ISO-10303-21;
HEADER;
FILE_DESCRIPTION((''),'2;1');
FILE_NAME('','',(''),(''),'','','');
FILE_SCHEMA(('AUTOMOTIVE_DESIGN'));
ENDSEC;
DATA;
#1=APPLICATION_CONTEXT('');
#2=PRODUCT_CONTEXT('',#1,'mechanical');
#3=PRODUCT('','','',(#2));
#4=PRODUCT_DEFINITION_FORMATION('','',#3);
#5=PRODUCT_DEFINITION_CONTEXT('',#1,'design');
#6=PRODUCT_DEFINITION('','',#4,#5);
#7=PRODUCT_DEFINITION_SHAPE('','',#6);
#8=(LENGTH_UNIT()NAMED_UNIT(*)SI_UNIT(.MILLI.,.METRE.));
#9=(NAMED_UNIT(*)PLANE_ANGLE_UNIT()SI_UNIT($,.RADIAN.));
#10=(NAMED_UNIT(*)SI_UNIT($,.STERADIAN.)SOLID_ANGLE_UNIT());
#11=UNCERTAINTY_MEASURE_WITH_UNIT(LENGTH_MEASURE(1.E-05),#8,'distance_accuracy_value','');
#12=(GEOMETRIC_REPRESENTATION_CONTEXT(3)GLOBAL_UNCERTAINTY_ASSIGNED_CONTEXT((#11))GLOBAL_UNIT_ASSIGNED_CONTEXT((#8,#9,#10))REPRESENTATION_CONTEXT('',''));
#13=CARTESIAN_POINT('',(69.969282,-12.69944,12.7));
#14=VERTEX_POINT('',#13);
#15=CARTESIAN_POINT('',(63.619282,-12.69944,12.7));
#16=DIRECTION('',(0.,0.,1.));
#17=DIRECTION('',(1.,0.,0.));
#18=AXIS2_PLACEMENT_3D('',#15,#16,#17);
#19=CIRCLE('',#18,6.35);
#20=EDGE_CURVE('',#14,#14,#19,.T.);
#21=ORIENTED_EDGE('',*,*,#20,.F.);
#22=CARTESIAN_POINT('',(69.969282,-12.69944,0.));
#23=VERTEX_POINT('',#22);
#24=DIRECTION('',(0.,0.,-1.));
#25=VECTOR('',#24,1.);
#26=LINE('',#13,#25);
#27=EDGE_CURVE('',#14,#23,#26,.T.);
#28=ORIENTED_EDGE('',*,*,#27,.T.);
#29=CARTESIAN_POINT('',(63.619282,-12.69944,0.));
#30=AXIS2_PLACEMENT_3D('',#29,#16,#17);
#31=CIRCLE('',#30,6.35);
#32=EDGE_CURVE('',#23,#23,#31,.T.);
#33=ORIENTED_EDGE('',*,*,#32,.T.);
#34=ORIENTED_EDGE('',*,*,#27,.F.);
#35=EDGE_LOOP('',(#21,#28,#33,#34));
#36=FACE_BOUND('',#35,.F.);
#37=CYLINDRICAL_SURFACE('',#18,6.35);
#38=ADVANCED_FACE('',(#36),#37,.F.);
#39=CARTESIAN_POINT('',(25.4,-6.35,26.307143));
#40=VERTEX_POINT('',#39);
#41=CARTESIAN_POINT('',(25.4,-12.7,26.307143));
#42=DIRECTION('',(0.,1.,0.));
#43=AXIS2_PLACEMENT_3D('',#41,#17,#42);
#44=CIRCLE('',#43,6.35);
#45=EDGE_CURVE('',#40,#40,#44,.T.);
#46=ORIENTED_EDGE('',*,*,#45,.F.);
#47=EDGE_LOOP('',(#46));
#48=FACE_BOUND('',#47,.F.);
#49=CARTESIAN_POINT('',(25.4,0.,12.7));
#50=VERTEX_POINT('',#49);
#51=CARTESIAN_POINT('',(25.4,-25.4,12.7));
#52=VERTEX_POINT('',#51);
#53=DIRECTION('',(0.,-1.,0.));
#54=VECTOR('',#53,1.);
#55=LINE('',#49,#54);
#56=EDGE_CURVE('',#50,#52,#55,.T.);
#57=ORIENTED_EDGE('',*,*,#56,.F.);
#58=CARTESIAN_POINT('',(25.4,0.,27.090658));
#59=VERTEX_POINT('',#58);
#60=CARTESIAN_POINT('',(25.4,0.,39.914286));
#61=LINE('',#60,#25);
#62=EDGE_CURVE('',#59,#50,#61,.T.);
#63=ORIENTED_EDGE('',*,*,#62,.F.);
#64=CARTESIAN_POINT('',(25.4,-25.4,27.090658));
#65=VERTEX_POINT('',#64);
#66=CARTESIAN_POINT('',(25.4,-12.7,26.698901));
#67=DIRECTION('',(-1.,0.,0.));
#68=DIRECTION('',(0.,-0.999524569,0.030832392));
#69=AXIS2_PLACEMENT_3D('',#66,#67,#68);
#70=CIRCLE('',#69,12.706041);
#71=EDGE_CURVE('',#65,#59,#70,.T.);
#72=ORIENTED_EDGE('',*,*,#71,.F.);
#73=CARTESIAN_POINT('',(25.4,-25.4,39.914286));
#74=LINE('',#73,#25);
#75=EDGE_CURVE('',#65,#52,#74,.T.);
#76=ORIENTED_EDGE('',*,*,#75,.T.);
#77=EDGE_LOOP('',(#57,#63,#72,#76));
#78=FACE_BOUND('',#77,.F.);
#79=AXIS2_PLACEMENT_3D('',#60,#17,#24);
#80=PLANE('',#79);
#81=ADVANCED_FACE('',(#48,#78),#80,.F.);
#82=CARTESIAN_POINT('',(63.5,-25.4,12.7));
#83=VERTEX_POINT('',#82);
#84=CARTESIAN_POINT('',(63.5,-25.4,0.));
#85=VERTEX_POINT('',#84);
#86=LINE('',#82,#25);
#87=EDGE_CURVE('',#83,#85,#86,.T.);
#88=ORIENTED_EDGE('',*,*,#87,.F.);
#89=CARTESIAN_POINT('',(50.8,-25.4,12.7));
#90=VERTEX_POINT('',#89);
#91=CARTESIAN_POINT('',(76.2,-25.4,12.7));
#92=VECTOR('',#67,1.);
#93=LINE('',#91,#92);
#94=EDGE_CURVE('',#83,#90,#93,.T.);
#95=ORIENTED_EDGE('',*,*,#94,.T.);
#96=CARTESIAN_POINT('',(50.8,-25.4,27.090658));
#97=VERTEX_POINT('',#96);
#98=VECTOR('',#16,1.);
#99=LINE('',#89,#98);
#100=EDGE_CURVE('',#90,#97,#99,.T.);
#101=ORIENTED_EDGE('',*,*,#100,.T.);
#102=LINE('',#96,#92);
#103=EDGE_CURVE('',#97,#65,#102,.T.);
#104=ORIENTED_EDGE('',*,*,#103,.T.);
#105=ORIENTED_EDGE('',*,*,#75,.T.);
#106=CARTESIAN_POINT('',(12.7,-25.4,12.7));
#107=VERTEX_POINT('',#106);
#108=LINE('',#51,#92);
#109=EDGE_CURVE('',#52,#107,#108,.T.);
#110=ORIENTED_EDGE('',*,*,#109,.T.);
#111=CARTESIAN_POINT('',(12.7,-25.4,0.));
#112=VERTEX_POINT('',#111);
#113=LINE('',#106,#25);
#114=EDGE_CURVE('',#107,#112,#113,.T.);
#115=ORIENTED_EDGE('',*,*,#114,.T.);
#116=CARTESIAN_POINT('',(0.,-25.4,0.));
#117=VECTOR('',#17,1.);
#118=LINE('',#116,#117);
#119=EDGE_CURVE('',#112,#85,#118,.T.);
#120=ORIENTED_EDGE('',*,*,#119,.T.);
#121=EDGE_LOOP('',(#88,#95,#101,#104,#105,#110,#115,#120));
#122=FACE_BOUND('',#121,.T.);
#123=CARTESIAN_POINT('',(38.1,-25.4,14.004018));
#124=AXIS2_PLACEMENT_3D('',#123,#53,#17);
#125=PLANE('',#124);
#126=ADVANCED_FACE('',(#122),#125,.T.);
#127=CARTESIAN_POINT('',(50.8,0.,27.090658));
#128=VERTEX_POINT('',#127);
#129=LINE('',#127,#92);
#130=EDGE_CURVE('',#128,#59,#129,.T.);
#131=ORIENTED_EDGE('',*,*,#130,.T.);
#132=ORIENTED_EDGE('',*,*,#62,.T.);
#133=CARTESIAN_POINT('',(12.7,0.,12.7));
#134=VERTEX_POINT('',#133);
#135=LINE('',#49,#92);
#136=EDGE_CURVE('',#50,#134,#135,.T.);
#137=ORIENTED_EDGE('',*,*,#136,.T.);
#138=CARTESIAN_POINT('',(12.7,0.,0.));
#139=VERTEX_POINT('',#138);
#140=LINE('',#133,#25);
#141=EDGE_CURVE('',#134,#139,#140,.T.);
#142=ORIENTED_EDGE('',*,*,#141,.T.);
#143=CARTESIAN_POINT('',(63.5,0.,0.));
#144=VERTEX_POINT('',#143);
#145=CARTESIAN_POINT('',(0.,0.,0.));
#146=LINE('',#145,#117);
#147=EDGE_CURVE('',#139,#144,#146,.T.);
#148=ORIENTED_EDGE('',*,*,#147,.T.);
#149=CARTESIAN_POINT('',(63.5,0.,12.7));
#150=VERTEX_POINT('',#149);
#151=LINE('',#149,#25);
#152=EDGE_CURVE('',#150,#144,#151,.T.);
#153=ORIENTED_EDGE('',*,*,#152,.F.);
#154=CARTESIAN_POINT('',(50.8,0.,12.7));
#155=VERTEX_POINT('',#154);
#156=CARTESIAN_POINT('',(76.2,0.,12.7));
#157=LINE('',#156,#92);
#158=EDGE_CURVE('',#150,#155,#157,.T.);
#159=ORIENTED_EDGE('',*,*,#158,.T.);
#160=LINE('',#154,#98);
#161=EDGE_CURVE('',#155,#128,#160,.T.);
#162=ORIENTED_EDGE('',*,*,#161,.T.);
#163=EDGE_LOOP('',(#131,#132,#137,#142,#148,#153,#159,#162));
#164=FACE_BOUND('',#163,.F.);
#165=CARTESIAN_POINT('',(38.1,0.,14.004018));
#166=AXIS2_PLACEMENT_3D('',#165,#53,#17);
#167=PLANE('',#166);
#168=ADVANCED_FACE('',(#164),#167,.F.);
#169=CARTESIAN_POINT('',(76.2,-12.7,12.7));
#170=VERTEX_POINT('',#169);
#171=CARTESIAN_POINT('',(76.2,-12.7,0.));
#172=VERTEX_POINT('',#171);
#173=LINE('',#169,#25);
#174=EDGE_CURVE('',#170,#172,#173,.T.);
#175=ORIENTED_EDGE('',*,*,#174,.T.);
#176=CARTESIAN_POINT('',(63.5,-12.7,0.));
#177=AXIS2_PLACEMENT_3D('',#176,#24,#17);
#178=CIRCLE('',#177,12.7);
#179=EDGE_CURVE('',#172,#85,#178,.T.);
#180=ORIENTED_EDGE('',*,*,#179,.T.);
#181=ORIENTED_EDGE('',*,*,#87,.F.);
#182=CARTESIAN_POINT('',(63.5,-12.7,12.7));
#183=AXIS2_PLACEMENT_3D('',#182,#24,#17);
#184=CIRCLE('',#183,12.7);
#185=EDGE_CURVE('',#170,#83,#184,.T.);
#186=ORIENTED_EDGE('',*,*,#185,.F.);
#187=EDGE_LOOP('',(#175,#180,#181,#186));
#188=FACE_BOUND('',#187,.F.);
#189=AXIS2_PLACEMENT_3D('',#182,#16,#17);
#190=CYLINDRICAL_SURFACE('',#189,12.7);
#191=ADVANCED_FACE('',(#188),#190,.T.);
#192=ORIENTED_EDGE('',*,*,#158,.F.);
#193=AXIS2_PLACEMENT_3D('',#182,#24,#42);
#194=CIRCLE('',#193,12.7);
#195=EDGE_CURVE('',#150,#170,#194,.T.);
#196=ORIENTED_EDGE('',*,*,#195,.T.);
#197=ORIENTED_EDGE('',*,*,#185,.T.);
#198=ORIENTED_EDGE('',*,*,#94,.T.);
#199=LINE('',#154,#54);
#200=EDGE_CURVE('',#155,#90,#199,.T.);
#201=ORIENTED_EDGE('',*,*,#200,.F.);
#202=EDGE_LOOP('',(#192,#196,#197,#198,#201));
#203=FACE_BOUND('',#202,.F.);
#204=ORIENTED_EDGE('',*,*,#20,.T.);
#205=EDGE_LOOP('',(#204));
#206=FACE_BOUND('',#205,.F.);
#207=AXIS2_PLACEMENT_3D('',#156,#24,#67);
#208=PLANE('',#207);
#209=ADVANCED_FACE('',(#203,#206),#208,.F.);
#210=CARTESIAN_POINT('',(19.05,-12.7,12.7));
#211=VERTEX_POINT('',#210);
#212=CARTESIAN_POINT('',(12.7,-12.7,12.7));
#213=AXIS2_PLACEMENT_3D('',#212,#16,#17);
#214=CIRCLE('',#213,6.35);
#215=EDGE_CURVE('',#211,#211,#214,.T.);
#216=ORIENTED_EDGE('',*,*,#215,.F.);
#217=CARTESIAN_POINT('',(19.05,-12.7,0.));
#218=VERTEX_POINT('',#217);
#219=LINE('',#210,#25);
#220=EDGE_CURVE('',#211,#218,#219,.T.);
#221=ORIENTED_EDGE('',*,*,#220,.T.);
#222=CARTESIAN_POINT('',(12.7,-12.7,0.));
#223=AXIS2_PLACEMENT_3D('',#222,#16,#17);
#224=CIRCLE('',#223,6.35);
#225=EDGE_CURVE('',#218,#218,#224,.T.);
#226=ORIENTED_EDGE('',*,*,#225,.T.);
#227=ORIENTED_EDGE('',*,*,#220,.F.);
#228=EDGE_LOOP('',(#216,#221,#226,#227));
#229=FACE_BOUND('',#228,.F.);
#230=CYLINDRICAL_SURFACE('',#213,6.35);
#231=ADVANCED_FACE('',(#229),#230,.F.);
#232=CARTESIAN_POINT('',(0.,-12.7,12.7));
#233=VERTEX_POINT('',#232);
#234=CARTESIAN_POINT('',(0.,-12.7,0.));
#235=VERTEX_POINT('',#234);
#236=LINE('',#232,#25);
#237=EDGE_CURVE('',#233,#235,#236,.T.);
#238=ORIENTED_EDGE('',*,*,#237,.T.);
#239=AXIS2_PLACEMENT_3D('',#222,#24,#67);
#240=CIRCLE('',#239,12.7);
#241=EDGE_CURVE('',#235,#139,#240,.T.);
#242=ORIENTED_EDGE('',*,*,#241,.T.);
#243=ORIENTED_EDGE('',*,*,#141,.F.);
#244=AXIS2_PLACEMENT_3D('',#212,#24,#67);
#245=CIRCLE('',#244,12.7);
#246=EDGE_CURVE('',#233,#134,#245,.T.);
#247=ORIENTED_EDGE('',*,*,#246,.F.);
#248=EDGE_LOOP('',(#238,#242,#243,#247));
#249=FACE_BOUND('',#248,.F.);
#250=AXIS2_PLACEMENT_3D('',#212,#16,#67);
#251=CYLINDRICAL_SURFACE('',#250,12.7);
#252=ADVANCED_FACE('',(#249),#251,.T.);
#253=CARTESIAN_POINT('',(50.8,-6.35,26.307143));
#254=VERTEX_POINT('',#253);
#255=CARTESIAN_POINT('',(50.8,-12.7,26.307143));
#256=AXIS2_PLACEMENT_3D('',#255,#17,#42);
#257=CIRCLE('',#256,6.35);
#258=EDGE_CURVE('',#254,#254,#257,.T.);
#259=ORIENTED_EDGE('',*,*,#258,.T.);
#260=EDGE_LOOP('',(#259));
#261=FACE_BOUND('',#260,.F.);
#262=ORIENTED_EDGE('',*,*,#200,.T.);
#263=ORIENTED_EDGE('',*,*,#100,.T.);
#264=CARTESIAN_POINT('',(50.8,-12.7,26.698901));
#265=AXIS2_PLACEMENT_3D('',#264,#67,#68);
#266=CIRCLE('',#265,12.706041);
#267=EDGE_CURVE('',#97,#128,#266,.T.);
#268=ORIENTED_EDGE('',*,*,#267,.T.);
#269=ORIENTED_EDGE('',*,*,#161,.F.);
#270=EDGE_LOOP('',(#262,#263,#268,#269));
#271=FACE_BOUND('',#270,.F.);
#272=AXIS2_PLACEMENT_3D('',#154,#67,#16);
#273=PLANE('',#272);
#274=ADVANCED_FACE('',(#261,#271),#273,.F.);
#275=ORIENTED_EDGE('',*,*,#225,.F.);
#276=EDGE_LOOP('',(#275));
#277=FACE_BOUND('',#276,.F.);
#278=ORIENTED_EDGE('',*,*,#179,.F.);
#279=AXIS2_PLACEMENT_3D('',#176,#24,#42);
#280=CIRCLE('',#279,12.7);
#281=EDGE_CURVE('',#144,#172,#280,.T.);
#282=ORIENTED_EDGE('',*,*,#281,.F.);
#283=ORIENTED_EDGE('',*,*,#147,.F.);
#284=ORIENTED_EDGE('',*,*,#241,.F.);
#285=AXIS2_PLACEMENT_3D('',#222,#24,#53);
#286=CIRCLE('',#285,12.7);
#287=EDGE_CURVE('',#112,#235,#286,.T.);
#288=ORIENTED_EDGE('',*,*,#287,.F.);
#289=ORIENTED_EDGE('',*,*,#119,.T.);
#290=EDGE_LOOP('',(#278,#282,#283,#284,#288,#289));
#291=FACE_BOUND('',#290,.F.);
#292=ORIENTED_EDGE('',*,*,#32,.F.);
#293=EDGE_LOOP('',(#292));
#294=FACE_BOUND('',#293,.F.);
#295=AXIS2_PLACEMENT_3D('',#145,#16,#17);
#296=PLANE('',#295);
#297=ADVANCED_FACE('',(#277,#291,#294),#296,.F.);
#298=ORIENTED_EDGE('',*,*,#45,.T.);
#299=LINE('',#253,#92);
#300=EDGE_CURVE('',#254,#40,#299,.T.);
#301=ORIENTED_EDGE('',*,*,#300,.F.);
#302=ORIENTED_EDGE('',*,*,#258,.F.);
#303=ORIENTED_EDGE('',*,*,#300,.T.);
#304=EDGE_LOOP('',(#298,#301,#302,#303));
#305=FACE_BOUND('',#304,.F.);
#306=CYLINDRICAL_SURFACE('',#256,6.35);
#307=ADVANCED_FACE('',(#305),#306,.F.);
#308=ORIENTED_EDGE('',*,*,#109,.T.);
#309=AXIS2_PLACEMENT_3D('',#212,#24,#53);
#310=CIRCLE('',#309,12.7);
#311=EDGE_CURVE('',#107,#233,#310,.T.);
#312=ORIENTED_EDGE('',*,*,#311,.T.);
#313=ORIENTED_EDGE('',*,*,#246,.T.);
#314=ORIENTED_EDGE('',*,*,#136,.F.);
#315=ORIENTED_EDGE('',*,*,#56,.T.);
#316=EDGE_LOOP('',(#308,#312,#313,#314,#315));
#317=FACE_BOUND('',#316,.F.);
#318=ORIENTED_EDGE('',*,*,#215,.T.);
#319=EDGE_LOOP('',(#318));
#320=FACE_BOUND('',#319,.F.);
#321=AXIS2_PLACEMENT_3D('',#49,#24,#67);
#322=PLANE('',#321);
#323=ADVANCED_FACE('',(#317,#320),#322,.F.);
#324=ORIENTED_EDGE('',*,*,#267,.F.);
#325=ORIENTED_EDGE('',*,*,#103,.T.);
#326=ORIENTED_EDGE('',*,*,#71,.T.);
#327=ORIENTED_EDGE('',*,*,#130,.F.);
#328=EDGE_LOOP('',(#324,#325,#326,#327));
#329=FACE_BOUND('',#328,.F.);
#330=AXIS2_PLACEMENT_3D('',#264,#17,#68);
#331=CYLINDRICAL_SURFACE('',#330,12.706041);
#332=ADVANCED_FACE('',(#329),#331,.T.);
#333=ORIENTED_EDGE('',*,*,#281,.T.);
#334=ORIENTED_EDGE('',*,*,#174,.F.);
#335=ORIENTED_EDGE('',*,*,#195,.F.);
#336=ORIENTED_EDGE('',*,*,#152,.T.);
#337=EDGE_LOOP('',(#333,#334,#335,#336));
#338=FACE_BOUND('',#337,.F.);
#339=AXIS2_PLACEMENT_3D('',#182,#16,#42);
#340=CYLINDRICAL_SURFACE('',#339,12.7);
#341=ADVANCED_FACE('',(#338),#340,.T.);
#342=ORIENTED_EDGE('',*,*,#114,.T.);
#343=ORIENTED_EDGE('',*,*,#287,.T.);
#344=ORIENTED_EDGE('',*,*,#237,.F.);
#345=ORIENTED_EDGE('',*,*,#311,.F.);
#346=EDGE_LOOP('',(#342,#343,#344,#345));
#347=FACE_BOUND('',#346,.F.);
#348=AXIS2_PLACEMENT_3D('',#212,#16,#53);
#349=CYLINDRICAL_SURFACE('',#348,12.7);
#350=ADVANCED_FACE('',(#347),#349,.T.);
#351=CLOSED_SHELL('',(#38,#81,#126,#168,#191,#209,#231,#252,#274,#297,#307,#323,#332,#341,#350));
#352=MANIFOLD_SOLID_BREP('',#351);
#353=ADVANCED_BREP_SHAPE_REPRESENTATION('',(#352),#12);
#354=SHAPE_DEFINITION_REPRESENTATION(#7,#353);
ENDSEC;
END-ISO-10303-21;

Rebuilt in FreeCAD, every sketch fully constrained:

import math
import FreeCAD as App
import Part
import Sketcher

V = App.Vector
Q = App.Units.Quantity


def add_polygon(sketch, points):
    """Adds a closed chain of lines whose ends are joined by coincident constraints."""
    first, n = sketch.GeometryCount, len(points)
    for a, b in zip(points, points[1:] + points[:1]):
        sketch.addGeometry(Part.LineSegment(App.Vector(*a, 0), App.Vector(*b, 0)), False)
    for i in range(n):
        sketch.addConstraint(Sketcher.Constraint("Coincident", first + i, 2, first + (i + 1) % n, 1))

doc = App.newDocument("Part")
body = doc.addObject("PartDesign::Body", "Body")

sketch1 = body.newObject("Sketcher::SketchObject", "Sketch")
sketch1.AttachmentSupport = (doc.getObject("XZ_Plane"), [""])
sketch1.MapMode = "FlatFace"
add_polygon(sketch1, [(0, 12.7), (0, 0), (76.2, 0), (76.2, 12.7), (50.8, 12.7), (50.8, 39.914286), (25.4, 39.914286), (25.4, 12.7)])
sketch1.addConstraint([
    Sketcher.Constraint("Vertical", 0),
    Sketcher.Constraint("Horizontal", 1),
    Sketcher.Constraint("Vertical", 2),
    Sketcher.Constraint("Horizontal", 3),
    Sketcher.Constraint("Vertical", 4),
    Sketcher.Constraint("Horizontal", 5),
    Sketcher.Constraint("Vertical", 6),
    Sketcher.Constraint("Horizontal", 7),
    Sketcher.Constraint("Coincident", 0, 2, -1, 1),
    Sketcher.Constraint("Horizontal", 3, 2, 6, 2),
    Sketcher.Constraint("Equal", 3, 5),
    Sketcher.Constraint("Equal", 5, 7),
    Sketcher.Constraint("DistanceX", 1, 1, 1, 2, Q("3 in")),
    Sketcher.Constraint("DistanceY", 0, 2, 0, 1, Q("0.5 in")),
    Sketcher.Constraint("DistanceY", 4, 1, 4, 2, 27.214286),
])
pad1 = body.newObject("PartDesign::Pad", "Pad")
pad1.Profile = sketch1
pad1.Length = Q("1 in")

sketch2 = body.newObject("Sketcher::SketchObject", "Sketch001")
sketch2.AttachmentSupport = (doc.getObject("XY_Plane"), [""])
sketch2.MapMode = "FlatFace"
sketch2.AttachmentOffset = App.Placement(V(0, 0, 0.5 * 25.4), App.Rotation())
sketch2.addGeometry(Part.Circle(V(63.619282, -12.69944, 0), V(0, 0, 1), 6.35), False)
sketch2.addConstraint([
    Sketcher.Constraint("Diameter", 0, Q("0.5 in")),
    Sketcher.Constraint("DistanceX", -1, 1, 0, 3, 63.619282),
    Sketcher.Constraint("DistanceY", 0, 3, -1, 1, 12.69944),
])
pocket1 = body.newObject("PartDesign::Pocket", "Pocket")
pocket1.Profile = sketch2
pocket1.Length = Q("0.5 in")

sketch3 = body.newObject("Sketcher::SketchObject", "Sketch002")
sketch3.AttachmentSupport = (doc.getObject("XY_Plane"), [""])
sketch3.MapMode = "FlatFace"
sketch3.AttachmentOffset = App.Placement(V(0, 0, 0.5 * 25.4), App.Rotation())
sketch3.addGeometry([
    Part.ArcOfCircle(Part.Circle(V(63.5, -12.7, 0), V(0, 0, 1), 12.7), math.radians(0), math.radians(90)),
    Part.LineSegment(V(76.2, -12.7, 0), V(76.2, 0, 0)),
    Part.LineSegment(V(76.2, 0, 0), V(63.5, 0, 0)),
    Part.ArcOfCircle(Part.Circle(V(63.5, -12.7, 0), V(0, 0, 1), 12.7), math.radians(-90), math.radians(0)),
    Part.LineSegment(V(63.5, -25.4, 0), V(76.2, -25.4, 0)),
    Part.LineSegment(V(76.2, -25.4, 0), V(76.2, -12.7, 0)),
], False)
sketch3.addConstraint([
    Sketcher.Constraint("Tangent", 0, 1, 1, 1),
    Sketcher.Constraint("Coincident", 1, 2, 2, 1),
    Sketcher.Constraint("Tangent", 2, 2, 0, 2),
    Sketcher.Constraint("Tangent", 3, 1, 4, 1),
    Sketcher.Constraint("Coincident", 4, 2, 5, 1),
    Sketcher.Constraint("Tangent", 5, 2, 3, 2),
    Sketcher.Constraint("Vertical", 1),
    Sketcher.Constraint("Horizontal", 2),
    Sketcher.Constraint("Horizontal", 4),
    Sketcher.Constraint("Vertical", 5),
    Sketcher.Constraint("Coincident", 3, 3, 0, 3),
    Sketcher.Constraint("Equal", 0, 3),
    Sketcher.Constraint("PointOnObject", 1, 2, -1),
    Sketcher.Constraint("Radius", 0, Q("0.5 in")),
    Sketcher.Constraint("DistanceX", -1, 1, 0, 1, Q("3 in")),
])
pocket2 = body.newObject("PartDesign::Pocket", "Pocket001")
pocket2.Profile = sketch3
pocket2.Length = Q("0.5 in")

sketch4 = body.newObject("Sketcher::SketchObject", "Sketch003")
sketch4.AttachmentSupport = (doc.getObject("XY_Plane"), [""])
sketch4.MapMode = "FlatFace"
sketch4.AttachmentOffset = App.Placement(V(0, 0, 0.5 * 25.4), App.Rotation())
sketch4.addGeometry(Part.Circle(V(12.7, -12.7, 0), V(0, 0, 1), 6.35), False)
sketch4.addConstraint([
    Sketcher.Constraint("Diameter", 0, Q("0.5 in")),
    Sketcher.Constraint("DistanceX", -1, 1, 0, 3, Q("0.5 in")),
    Sketcher.Constraint("DistanceY", 0, 3, -1, 1, Q("0.5 in")),
])
pocket3 = body.newObject("PartDesign::Pocket", "Pocket002")
pocket3.Profile = sketch4
pocket3.Length = Q("0.5 in")

sketch5 = body.newObject("Sketcher::SketchObject", "Sketch004")
sketch5.AttachmentSupport = (doc.getObject("XY_Plane"), [""])
sketch5.MapMode = "FlatFace"
sketch5.AttachmentOffset = App.Placement(V(0, 0, 0.5 * 25.4), App.Rotation())
sketch5.addGeometry([
    Part.ArcOfCircle(Part.Circle(V(12.7, -12.7, 0), V(0, 0, 1), 12.7), math.radians(180), math.radians(270)),
    Part.LineSegment(V(0, -12.7, 0), V(0, -25.4, 0)),
    Part.LineSegment(V(0, -25.4, 0), V(12.7, -25.4, 0)),
    Part.ArcOfCircle(Part.Circle(V(12.7, -12.7, 0), V(0, 0, 1), 12.7), math.radians(90), math.radians(180)),
    Part.LineSegment(V(12.7, 0, 0), V(0, 0, 0)),
    Part.LineSegment(V(0, 0, 0), V(0, -12.7, 0)),
], False)
sketch5.addConstraint([
    Sketcher.Constraint("Tangent", 0, 1, 1, 1),
    Sketcher.Constraint("Coincident", 1, 2, 2, 1),
    Sketcher.Constraint("Tangent", 2, 2, 0, 2),
    Sketcher.Constraint("Tangent", 3, 1, 4, 1),
    Sketcher.Constraint("Coincident", 4, 2, 5, 1),
    Sketcher.Constraint("Tangent", 5, 2, 3, 2),
    Sketcher.Constraint("Vertical", 1),
    Sketcher.Constraint("Horizontal", 2),
    Sketcher.Constraint("Horizontal", 4),
    Sketcher.Constraint("Vertical", 5),
    Sketcher.Constraint("Coincident", 4, 2, -1, 1),
    Sketcher.Constraint("Coincident", 3, 3, 0, 3),
    Sketcher.Constraint("Equal", 0, 3),
    Sketcher.Constraint("Radius", 0, Q("0.5 in")),
])
pocket4 = body.newObject("PartDesign::Pocket", "Pocket003")
pocket4.Profile = sketch5
pocket4.Length = Q("0.5 in")

sketch6 = body.newObject("Sketcher::SketchObject", "Sketch005")
sketch6.AttachmentSupport = (doc.getObject("YZ_Plane"), [""])
sketch6.MapMode = "FlatFace"
sketch6.AttachmentOffset = App.Placement(V(0, 0, 2 * 25.4), App.Rotation())
sketch6.addGeometry(Part.Circle(V(-12.7, 26.307143, 0), V(0, 0, 1), 6.35), False)
sketch6.addConstraint([
    Sketcher.Constraint("Diameter", 0, Q("0.5 in")),
    Sketcher.Constraint("DistanceX", 0, 3, -1, 1, Q("0.5 in")),
    Sketcher.Constraint("DistanceY", -1, 1, 0, 3, 26.307143),
])
pocket5 = body.newObject("PartDesign::Pocket", "Pocket004")
pocket5.Profile = sketch6
pocket5.Length = Q("1 in")

sketch7 = body.newObject("Sketcher::SketchObject", "Sketch006")
sketch7.AttachmentSupport = (doc.getObject("YZ_Plane"), [""])
sketch7.MapMode = "FlatFace"
sketch7.AttachmentOffset = App.Placement(V(0, 0, 2 * 25.4), App.Rotation())
sketch7.addGeometry([
    Part.ArcOfCircle(Part.Circle(V(-12.7, 26.698901, 0), V(0, 0, 1), 12.706041), math.radians(1.766846), math.radians(178.233154)),
    Part.LineSegment(V(0, 27.090658, 0), V(0, 39.914286, 0)),
    Part.LineSegment(V(0, 39.914286, 0), V(-25.4, 39.914286, 0)),
    Part.LineSegment(V(-25.4, 39.914286, 0), V(-25.4, 27.090658, 0)),
], False)
sketch7.addConstraint([
    Sketcher.Constraint("Coincident", 0, 1, 1, 1),
    Sketcher.Constraint("Coincident", 1, 2, 2, 1),
    Sketcher.Constraint("Coincident", 2, 2, 3, 1),
    Sketcher.Constraint("Coincident", 3, 2, 0, 2),
    Sketcher.Constraint("Vertical", 1),
    Sketcher.Constraint("Horizontal", 2),
    Sketcher.Constraint("Vertical", 3),
    Sketcher.Constraint("PointOnObject", 0, 1, -2),
    Sketcher.Constraint("Horizontal", 0, 1, 3, 2),
    Sketcher.Constraint("DistanceX", 2, 2, 2, 1, Q("1 in")),
    Sketcher.Constraint("Radius", 0, 12.706041),
    Sketcher.Constraint("DistanceY", -1, 1, 0, 3, 26.698901),
    Sketcher.Constraint("DistanceY", 1, 1, 1, 2, 12.823628),
])
pocket6 = body.newObject("PartDesign::Pocket", "Pocket005")
pocket6.Profile = sketch7
pocket6.Length = Q("1 in")

doc.recompute()
